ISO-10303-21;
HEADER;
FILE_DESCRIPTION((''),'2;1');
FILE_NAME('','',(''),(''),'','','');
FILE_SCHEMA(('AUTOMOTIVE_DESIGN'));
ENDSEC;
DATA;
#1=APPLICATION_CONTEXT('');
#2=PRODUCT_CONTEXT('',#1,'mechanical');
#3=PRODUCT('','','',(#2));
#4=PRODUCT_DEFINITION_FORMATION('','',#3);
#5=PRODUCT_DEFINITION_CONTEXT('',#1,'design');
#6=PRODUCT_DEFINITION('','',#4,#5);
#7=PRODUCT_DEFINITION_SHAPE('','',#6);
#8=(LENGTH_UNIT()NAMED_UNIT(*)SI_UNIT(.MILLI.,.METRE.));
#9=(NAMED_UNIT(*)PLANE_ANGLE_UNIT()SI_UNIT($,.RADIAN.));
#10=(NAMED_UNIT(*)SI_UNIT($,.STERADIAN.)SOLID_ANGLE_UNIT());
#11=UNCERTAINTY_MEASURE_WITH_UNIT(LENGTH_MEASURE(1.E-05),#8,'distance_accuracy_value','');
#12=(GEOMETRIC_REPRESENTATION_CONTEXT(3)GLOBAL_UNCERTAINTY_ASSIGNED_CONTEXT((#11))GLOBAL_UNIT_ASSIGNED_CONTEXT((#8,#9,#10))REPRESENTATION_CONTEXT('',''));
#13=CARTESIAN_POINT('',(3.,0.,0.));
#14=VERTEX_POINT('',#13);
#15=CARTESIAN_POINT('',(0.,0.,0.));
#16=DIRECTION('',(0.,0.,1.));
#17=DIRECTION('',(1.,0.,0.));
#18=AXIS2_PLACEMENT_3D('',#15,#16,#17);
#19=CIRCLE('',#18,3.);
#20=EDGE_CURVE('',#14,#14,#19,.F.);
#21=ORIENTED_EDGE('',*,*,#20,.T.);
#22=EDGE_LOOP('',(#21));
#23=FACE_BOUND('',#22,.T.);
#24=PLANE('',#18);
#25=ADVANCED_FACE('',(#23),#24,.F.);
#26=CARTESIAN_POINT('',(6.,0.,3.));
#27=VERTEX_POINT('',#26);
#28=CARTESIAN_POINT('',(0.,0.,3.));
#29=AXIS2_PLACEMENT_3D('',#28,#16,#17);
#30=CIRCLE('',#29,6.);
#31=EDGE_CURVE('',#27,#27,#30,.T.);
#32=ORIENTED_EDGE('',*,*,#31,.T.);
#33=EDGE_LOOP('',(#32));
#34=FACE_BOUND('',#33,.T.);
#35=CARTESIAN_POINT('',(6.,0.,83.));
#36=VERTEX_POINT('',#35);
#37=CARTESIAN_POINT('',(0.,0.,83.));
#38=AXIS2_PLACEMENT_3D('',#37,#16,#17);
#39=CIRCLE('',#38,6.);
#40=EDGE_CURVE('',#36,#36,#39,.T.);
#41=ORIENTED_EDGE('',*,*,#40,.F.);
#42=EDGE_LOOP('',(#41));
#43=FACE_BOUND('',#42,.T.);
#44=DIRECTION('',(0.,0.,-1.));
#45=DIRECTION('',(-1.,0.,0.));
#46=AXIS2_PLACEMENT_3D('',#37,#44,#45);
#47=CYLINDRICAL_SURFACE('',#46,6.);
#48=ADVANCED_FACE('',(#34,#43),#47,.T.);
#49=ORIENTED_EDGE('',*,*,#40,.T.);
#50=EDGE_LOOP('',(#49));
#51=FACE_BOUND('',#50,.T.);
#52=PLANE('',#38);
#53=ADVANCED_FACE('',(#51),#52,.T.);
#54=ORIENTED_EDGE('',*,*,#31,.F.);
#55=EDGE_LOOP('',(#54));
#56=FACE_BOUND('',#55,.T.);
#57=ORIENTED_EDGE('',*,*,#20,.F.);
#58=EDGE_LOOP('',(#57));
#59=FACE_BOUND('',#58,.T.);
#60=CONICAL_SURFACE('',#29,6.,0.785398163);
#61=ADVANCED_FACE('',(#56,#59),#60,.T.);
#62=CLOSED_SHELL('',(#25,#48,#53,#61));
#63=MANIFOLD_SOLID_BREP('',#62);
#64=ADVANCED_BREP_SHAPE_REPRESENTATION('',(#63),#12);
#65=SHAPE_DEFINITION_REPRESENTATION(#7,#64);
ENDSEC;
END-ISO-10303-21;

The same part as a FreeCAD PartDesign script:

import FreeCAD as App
import Part
import Sketcher
from FreeCAD import Vector
Q = App.Units.Quantity


def edges_at(feature, points):
    """Names of the edges that pass closest to the given points."""
    edges = feature.Shape.Edges
    near = lambda p: min(range(len(edges)), key=lambda i: edges[i].distToShape(Part.Vertex(*p))[0])
    return sorted({f"Edge{near(p) + 1}" for p in points})

doc = App.newDocument("Part")
params = doc.addObject("Spreadsheet::Sheet", "Params")
for row, (alias, value) in enumerate([
    ("sketch1_diameter", "12 mm"),
    ("pad1_length", "83 mm"),
    ("chamfer_size", "3 mm"),
], start=1):
    params.set(f"A{row}", alias)
    params.set(f"B{row}", "=" + value)
    params.setAlias(f"B{row}", alias)

body = doc.addObject("PartDesign::Body", "Body")

sketch1 = body.newObject("Sketcher::SketchObject", "Sketch")
sketch1.AttachmentSupport = (doc.getObject("XY_Plane"), [""])
sketch1.MapMode = "FlatFace"
sketch1.addGeometry(Part.Circle(Vector(0, 0, 0), Vector(0, 0, 1), 6), False)
sketch1.addConstraint([
    Sketcher.Constraint("Coincident", 0, 3, -1, 1),
    Sketcher.Constraint("Diameter", 0, Q("12 mm")),
])
sketch1.setExpression("Constraints[1]", "Params.sketch1_diameter")
pad1 = body.newObject("PartDesign::Pad", "Pad")
pad1.Profile = sketch1
pad1.setExpression("Length", "Params.pad1_length")
doc.recompute()

chamfer = body.newObject("PartDesign::Chamfer", "Chamfer")
chamfer.Base = (pad1, edges_at(pad1, [(-6, 0, 0)]))
chamfer.setExpression("Size", "Params.chamfer_size")

doc.recompute()
